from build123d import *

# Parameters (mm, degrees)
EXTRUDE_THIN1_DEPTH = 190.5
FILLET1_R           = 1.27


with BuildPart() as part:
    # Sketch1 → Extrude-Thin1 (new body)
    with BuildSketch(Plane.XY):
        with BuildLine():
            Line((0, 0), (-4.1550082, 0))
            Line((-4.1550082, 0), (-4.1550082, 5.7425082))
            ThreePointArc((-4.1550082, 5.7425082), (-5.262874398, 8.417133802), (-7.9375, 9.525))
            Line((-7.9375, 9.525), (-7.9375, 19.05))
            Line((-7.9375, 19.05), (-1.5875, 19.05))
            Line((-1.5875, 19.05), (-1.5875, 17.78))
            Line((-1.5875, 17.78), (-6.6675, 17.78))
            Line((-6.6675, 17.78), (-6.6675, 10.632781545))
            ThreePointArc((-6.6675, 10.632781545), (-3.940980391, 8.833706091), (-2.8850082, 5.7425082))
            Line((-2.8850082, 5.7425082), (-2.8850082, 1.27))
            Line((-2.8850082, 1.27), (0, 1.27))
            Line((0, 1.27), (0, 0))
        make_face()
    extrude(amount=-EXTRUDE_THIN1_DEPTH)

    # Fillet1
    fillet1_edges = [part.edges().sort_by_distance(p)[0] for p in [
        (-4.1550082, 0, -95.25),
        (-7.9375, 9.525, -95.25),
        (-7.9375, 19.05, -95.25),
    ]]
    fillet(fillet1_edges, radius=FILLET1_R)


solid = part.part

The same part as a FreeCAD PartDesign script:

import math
import FreeCAD as App
import Part
import Sketcher
Q = App.Units.Quantity


def edges_at(feature, points):
    """Names of the edges that pass closest to the given points."""
    edges = feature.Shape.Edges
    near = lambda p: min(range(len(edges)), key=lambda i: edges[i].distToShape(Part.Vertex(*p))[0])
    return sorted({f"Edge{near(p) + 1}" for p in points})

doc = App.newDocument("Part")
body = doc.addObject("PartDesign::Body", "Body")

# Sketch on XY plane
sketch1 = body.newObject("Sketcher::SketchObject", "Sketch")
sketch1.AttachmentSupport = (doc.getObject("XY_Plane"), [""])
sketch1.MapMode = "FlatFace"
sketch1.addGeometry(Part.LineSegment(App.Vector(-4.2, 0, 0), App.Vector(0, 0, 0)), False)
sketch1.addGeometry(Part.LineSegment(App.Vector(0, 0, 0), App.Vector(0, 1.3, 0)), False)
sketch1.addGeometry(Part.LineSegment(App.Vector(0, 1.3, 0), App.Vector(-2.9, 1.3, 0)), False)
sketch1.addGeometry(Part.LineSegment(App.Vector(-2.9, 1.3, 0), App.Vector(-2.9, 5.7, 0)), False)
sketch1.addGeometry(Part.ArcOfCircle(Part.Circle(App.Vector(-7.9, 5.7, 0), App.Vector(0, 0, 1), 5.1), math.radians(0), math.radians(75)), False)
sketch1.addGeometry(Part.LineSegment(App.Vector(-6.7, 10.6, 0), App.Vector(-6.7, 17.8, 0)), False)
sketch1.addGeometry(Part.LineSegment(App.Vector(-6.7, 17.8, 0), App.Vector(-1.6, 17.8, 0)), False)
sketch1.addGeometry(Part.LineSegment(App.Vector(-1.6, 17.8, 0), App.Vector(-1.6, 19.1, 0)), False)
sketch1.addGeometry(Part.LineSegment(App.Vector(-1.6, 19.1, 0), App.Vector(-7.9, 19.1, 0)), False)
sketch1.addGeometry(Part.LineSegment(App.Vector(-7.9, 19.1, 0), App.Vector(-7.9, 9.5, 0)), False)
sketch1.addGeometry(Part.ArcOfCircle(Part.Circle(App.Vector(-7.9, 5.7, 0), App.Vector(0, 0, 1), 3.8), math.radians(0), math.radians(90)), False)
sketch1.addGeometry(Part.LineSegment(App.Vector(-4.2, 5.7, 0), App.Vector(-4.2, 0, 0)), False)
sketch1.addConstraint(Sketcher.Constraint("Coincident", 0, 2, 1, 1))
sketch1.addConstraint(Sketcher.Constraint("Coincident", 1, 2, 2, 1))
sketch1.addConstraint(Sketcher.Constraint("Coincident", 2, 2, 3, 1))
sketch1.addConstraint(Sketcher.Constraint("Tangent", 3, 2, 4, 1))
sketch1.addConstraint(Sketcher.Constraint("Coincident", 4, 2, 5, 1))
sketch1.addConstraint(Sketcher.Constraint("Coincident", 5, 2, 6, 1))
sketch1.addConstraint(Sketcher.Constraint("Coincident", 6, 2, 7, 1))
sketch1.addConstraint(Sketcher.Constraint("Coincident", 7, 2, 8, 1))
sketch1.addConstraint(Sketcher.Constraint("Coincident", 8, 2, 9, 1))
sketch1.addConstraint(Sketcher.Constraint("Coincident", 9, 2, 10, 2))
sketch1.addConstraint(Sketcher.Constraint("Tangent", 10, 1, 11, 1))
sketch1.addConstraint(Sketcher.Constraint("Coincident", 11, 2, 0, 1))
sketch1.addConstraint(Sketcher.Constraint("Horizontal", 0))
sketch1.addConstraint(Sketcher.Constraint("Vertical", 1))
sketch1.addConstraint(Sketcher.Constraint("Horizontal", 2))
sketch1.addConstraint(Sketcher.Constraint("Vertical", 3))
sketch1.addConstraint(Sketcher.Constraint("Vertical", 5))
sketch1.addConstraint(Sketcher.Constraint("Horizontal", 6))
sketch1.addConstraint(Sketcher.Constraint("Vertical", 7))
sketch1.addConstraint(Sketcher.Constraint("Horizontal", 8))
sketch1.addConstraint(Sketcher.Constraint("Vertical", 9))
sketch1.addConstraint(Sketcher.Constraint("Vertical", 11))
sketch1.addConstraint(Sketcher.Constraint("Coincident", 0, 2, -1, 1))
sketch1.addConstraint(Sketcher.Constraint("Coincident", 10, 3, 4, 3))
sketch1.addConstraint(Sketcher.Constraint("Vertical", 10, 3, 8, 2))
sketch1.addConstraint(Sketcher.Constraint("Equal", 1, 7))
sketch1.addConstraint(Sketcher.Constraint("DistanceX", 6, 1, 6, 2, Q("0.2 in")))
sketch1.addConstraint(Sketcher.Constraint("DistanceX", 8, 2, 8, 1, Q("0.25 in")))
sketch1.addConstraint(Sketcher.Constraint("DistanceY", 1, 1, 1, 2, Q("0.05 in")))
sketch1.addConstraint(Sketcher.Constraint("DistanceY", -1, 1, 5, 2, Q("0.7 in")))
sketch1.addConstraint(Sketcher.Constraint("DistanceY", 9, 2, 9, 1, Q("0.375 in")))
sketch1.addConstraint(Sketcher.Constraint("DistanceX", 10, 1, 3, 2, Q("0.05 in")))
sketch1.addConstraint(Sketcher.Constraint("DistanceX", 4, 3, -1, 1, Q("0.3125 in")))
sketch1.addConstraint(Sketcher.Constraint("Radius", 4, Q("5.052492 mm")))
pad1 = body.newObject("PartDesign::Pad", "Pad")
pad1.Profile = sketch1
pad1.Length = Q("7.5 in")
pad1.Reversed = True
doc.recompute()

fillet = body.newObject("PartDesign::Fillet", "Fillet")
fillet.Base = (pad1, edges_at(pad1, [(-4.155, 0, -95.25), (-7.938, 9.525, -95.25), (-7.938, 19.05, -95.25)]))
fillet.Radius = Q("0.05 in")

doc.recompute()
